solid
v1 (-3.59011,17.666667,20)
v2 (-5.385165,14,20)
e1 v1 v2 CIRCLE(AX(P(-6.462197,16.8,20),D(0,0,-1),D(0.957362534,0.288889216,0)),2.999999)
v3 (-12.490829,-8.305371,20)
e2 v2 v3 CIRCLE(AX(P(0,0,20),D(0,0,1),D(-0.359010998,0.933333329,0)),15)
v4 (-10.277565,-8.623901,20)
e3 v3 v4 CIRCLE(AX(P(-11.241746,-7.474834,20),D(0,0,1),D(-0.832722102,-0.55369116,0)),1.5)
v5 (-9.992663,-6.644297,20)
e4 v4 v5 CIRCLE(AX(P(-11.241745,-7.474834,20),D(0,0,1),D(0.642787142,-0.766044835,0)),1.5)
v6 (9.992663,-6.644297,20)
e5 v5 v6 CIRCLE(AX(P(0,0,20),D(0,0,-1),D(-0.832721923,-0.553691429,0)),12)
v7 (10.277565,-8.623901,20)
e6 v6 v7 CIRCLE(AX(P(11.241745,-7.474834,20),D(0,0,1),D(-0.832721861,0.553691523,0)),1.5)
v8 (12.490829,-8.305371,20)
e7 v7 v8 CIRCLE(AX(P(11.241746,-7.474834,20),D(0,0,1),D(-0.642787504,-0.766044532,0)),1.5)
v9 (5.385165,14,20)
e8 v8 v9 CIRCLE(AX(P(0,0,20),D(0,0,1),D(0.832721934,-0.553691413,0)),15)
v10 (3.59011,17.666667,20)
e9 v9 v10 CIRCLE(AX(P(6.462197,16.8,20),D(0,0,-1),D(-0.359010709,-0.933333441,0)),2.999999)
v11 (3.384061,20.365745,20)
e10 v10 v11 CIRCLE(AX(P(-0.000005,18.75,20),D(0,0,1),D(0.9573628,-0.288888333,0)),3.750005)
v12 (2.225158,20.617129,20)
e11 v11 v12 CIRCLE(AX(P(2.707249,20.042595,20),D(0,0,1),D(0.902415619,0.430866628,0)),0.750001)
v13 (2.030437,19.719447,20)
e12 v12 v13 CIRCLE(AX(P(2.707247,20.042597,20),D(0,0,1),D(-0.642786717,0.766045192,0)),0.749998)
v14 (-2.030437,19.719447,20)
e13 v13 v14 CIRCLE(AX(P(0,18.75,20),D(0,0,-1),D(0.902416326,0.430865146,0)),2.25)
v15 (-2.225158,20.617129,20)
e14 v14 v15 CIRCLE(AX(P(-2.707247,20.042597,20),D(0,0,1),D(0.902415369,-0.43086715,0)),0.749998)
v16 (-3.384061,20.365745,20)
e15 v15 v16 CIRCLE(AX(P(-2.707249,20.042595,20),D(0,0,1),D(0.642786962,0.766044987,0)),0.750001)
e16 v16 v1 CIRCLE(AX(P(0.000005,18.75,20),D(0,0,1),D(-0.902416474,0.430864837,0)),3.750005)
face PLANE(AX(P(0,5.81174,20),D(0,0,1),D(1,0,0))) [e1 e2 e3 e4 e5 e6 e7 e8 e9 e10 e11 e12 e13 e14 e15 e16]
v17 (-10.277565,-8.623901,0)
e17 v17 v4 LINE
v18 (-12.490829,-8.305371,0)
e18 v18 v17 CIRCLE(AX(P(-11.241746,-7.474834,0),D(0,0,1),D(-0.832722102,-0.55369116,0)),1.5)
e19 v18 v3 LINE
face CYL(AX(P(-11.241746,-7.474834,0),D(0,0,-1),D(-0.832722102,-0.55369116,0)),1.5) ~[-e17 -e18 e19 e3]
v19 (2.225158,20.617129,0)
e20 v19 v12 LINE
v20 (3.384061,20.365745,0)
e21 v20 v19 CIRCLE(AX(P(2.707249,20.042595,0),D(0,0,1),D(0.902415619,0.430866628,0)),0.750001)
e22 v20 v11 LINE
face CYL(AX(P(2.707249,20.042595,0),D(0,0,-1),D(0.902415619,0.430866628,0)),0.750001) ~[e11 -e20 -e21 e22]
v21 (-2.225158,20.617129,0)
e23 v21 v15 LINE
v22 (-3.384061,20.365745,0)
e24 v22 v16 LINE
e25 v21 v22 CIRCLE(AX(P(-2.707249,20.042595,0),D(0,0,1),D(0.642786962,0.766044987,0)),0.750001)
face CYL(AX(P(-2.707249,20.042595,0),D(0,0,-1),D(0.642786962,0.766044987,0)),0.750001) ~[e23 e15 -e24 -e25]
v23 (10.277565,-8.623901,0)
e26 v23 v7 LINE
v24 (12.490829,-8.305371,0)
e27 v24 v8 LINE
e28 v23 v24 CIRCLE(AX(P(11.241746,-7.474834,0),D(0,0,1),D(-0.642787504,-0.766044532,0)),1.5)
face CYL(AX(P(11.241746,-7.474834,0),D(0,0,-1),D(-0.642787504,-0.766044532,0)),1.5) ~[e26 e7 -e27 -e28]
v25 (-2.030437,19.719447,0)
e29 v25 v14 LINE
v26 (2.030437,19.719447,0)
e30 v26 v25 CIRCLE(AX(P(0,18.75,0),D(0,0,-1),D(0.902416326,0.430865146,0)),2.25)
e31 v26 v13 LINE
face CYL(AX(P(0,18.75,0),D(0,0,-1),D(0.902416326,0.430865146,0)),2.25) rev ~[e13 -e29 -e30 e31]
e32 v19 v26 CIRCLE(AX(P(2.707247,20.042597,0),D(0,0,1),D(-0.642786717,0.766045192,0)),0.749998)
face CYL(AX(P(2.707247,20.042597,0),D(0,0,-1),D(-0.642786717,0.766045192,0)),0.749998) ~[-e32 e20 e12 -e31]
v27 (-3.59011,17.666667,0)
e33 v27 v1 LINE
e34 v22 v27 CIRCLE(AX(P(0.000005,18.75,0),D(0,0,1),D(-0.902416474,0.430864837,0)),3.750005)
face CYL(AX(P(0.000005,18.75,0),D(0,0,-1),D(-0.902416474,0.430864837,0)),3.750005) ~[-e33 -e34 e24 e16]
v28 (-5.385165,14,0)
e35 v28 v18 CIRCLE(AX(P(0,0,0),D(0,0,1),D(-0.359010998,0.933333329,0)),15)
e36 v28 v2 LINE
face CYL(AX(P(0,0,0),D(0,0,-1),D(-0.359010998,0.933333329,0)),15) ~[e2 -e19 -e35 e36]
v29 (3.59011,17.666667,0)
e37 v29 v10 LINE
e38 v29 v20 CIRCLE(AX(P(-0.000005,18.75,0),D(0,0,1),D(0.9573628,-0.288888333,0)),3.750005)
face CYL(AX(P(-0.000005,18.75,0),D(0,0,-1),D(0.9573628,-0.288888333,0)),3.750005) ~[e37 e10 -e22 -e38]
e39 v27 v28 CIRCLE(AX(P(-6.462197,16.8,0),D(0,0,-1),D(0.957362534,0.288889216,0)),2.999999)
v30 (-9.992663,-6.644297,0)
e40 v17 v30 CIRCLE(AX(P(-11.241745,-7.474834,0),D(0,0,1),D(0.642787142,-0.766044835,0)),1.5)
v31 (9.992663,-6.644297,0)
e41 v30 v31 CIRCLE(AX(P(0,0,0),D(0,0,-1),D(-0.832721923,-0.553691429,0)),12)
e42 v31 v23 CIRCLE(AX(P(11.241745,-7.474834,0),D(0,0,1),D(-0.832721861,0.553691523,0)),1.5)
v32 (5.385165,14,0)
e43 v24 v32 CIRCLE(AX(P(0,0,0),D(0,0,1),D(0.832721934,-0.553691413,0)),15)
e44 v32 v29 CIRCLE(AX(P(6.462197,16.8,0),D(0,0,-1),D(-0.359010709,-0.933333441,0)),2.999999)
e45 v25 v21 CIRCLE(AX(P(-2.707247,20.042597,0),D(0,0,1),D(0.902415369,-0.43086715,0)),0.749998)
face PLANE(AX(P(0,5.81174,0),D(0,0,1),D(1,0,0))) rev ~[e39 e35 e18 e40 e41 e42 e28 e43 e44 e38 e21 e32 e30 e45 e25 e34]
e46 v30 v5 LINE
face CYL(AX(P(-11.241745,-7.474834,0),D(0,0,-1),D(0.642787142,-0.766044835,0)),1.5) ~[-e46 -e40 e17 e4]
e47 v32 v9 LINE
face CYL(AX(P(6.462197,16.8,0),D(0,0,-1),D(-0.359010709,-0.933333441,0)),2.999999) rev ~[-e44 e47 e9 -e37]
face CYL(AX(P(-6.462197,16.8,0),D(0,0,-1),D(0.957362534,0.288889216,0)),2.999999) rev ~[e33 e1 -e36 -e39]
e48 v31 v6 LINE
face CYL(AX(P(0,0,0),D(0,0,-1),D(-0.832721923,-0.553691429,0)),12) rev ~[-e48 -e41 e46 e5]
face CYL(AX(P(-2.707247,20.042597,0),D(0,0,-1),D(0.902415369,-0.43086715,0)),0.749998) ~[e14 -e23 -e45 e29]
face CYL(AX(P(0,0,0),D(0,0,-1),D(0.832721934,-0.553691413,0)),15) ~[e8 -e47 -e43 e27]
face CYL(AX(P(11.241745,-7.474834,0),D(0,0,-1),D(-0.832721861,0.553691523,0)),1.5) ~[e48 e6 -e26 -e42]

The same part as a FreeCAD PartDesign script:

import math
import FreeCAD as App
import Part
import Sketcher
Q = App.Units.Quantity

doc = App.newDocument("Part")
params = doc.addObject("Spreadsheet::Sheet", "Params")
for row, (alias, value) in enumerate([
    ("sketch1_radius", "12 mm"),
    ("sketch1_radius2", "15 mm"),
    ("sketch1_radius3", "2.999999 mm"),
    ("sketch1_radius4", "0.750001 mm"),
    ("sketch1_radius5", "2.25 mm"),
    ("pad1_length", "20 mm"),
], start=1):
    params.set(f"A{row}", alias)
    params.set(f"B{row}", "=" + value)
    params.setAlias(f"B{row}", alias)

body = doc.addObject("PartDesign::Body", "Body")

# Sketch on XY plane
sketch1 = body.newObject("Sketcher::SketchObject", "Sketch")
sketch1.AttachmentSupport = (doc.getObject("XY_Plane"), [""])
sketch1.MapMode = "FlatFace"
sketch1.addGeometry([
    Part.ArcOfCircle(Part.Circle(App.Vector(0, 0, 0), App.Vector(0, 0, 1), 12), math.radians(-34), math.radians(214)),  # 0
    Part.ArcOfCircle(Part.Circle(App.Vector(11.2, -7.5, 0), App.Vector(0, 0, 1), 1.5), math.radians(146), math.radians(230)),  # 1
    Part.ArcOfCircle(Part.Circle(App.Vector(11.2, -7.5, 0), App.Vector(0, 0, 1), 1.5), math.radians(-130), math.radians(-34)),  # 2
    Part.ArcOfCircle(Part.Circle(App.Vector(0, 0, 0), App.Vector(0, 0, 1), 15), math.radians(-34), math.radians(69)),  # 3
    Part.ArcOfCircle(Part.Circle(App.Vector(6.5, 16.8, 0), App.Vector(0, 0, 1), 3), math.radians(163), math.radians(249)),  # 4
    Part.ArcOfCircle(Part.Circle(App.Vector(0, 18.7, 0), App.Vector(0, 0, 1), 3.8), math.radians(-17), math.radians(26)),  # 5
    Part.ArcOfCircle(Part.Circle(App.Vector(2.7, 20, 0), App.Vector(0, 0, 1), 0.8), math.radians(26), math.radians(130)),  # 6
    Part.ArcOfCircle(Part.Circle(App.Vector(2.7, 20, 0), App.Vector(0, 0, 1), 0.7), math.radians(130), math.radians(206)),  # 7
    Part.ArcOfCircle(Part.Circle(App.Vector(0, 18.8, 0), App.Vector(0, 0, 1), 2.3), math.radians(154), math.radians(386)),  # 8
    Part.ArcOfCircle(Part.Circle(App.Vector(-2.7, 20, 0), App.Vector(0, 0, 1), 0.7), math.radians(-26), math.radians(50)),  # 9
    Part.ArcOfCircle(Part.Circle(App.Vector(-2.7, 20, 0), App.Vector(0, 0, 1), 0.8), math.radians(50), math.radians(154)),  # 10
    Part.ArcOfCircle(Part.Circle(App.Vector(0, 18.7, 0), App.Vector(0, 0, 1), 3.8), math.radians(154), math.radians(197)),  # 11
    Part.ArcOfCircle(Part.Circle(App.Vector(-6.5, 16.8, 0), App.Vector(0, 0, 1), 3), math.radians(-69), math.radians(17)),  # 12
    Part.ArcOfCircle(Part.Circle(App.Vector(0, 0, 0), App.Vector(0, 0, 1), 15), math.radians(111), math.radians(214)),  # 13
    Part.ArcOfCircle(Part.Circle(App.Vector(-11.2, -7.5, 0), App.Vector(0, 0, 1), 1.5), math.radians(-146), math.radians(-50)),  # 14
    Part.ArcOfCircle(Part.Circle(App.Vector(-11.2, -7.5, 0), App.Vector(0, 0, 1), 1.5), math.radians(-50), math.radians(34)),  # 15
], False)
sketch1.addConstraint([
    Sketcher.Constraint("Tangent", 0, 1, 1, 1),
    Sketcher.Constraint("Tangent", 1, 2, 2, 1),
    Sketcher.Constraint("Tangent", 2, 2, 3, 1),
    Sketcher.Constraint("Tangent", 3, 2, 4, 2),
    Sketcher.Constraint("Tangent", 4, 1, 5, 1),
    Sketcher.Constraint("Tangent", 5, 2, 6, 1),
    Sketcher.Constraint("Tangent", 6, 2, 7, 1),
    Sketcher.Constraint("Coincident", 7, 2, 8, 2),
    Sketcher.Constraint("Coincident", 8, 1, 9, 1),
    Sketcher.Constraint("Tangent", 9, 2, 10, 1),
    Sketcher.Constraint("Tangent", 10, 2, 11, 1),
    Sketcher.Constraint("Tangent", 11, 2, 12, 2),
    Sketcher.Constraint("Tangent", 12, 1, 13, 1),
    Sketcher.Constraint("Tangent", 13, 2, 14, 1),
    Sketcher.Constraint("Tangent", 14, 2, 15, 1),
    Sketcher.Constraint("Tangent", 15, 2, 0, 2),
    Sketcher.Constraint("Coincident", 0, 3, -1, 1),
    Sketcher.Constraint("Coincident", 3, 3, -1, 1),
    Sketcher.Constraint("Coincident", 13, 3, -1, 1),
    Sketcher.Constraint("Coincident", 8, 3, 5, 3),
    Sketcher.Constraint("Coincident", 11, 3, 8, 3),
    Sketcher.Constraint("Equal", 1, 2),
    Sketcher.Constraint("Equal", 7, 9),
    Sketcher.Constraint("Equal", 6, 10),
    Sketcher.Constraint("Equal", 4, 12),
    Sketcher.Constraint("Equal", 3, 13),
    Sketcher.Constraint("Equal", 2, 14),
    Sketcher.Constraint("Symmetric", 6, 3, 9, 3, -2),
    Sketcher.Constraint("Symmetric", 7, 2, 8, 1, -2),
    Sketcher.Constraint("Symmetric", 1, 2, 14, 2, -2),
    Sketcher.Constraint("Horizontal", 6, 2, 9, 2),
    Sketcher.Constraint("Radius", 0, Q("12 mm")),
    Sketcher.Constraint("Radius", 3, Q("15 mm")),
    Sketcher.Constraint("Radius", 4, Q("2.999999 mm")),
    Sketcher.Constraint("Radius", 6, Q("0.750001 mm")),
    Sketcher.Constraint("Radius", 8, Q("2.25 mm")),
    Sketcher.Constraint("DistanceY", -1, 1, 3, 2, Q("14 mm")),
    Sketcher.Constraint("DistanceY", 1, 2, -1, 1, Q("8.623901 mm")),
    Sketcher.Constraint("DistanceX", 0, 1, 1, 2, Q("0.284902 mm")),
    Sketcher.Constraint("DistanceX", -1, 1, 6, 3, Q("2.707249 mm")),
    Sketcher.Constraint("DistanceY", -1, 1, 6, 2, Q("20.617129 mm")),
    Sketcher.Constraint("DistanceX", 7, 2, 7, 3, Q("0.67681 mm")),
])
sketch1.setExpression("Constraints[31]", "Params.sketch1_radius")
sketch1.setExpression("Constraints[32]", "Params.sketch1_radius2")
sketch1.setExpression("Constraints[33]", "Params.sketch1_radius3")
sketch1.setExpression("Constraints[34]", "Params.sketch1_radius4")
sketch1.setExpression("Constraints[35]", "Params.sketch1_radius5")
pad1 = body.newObject("PartDesign::Pad", "Pad")
pad1.Profile = sketch1
pad1.setExpression("Length", "Params.pad1_length")

doc.recompute()
